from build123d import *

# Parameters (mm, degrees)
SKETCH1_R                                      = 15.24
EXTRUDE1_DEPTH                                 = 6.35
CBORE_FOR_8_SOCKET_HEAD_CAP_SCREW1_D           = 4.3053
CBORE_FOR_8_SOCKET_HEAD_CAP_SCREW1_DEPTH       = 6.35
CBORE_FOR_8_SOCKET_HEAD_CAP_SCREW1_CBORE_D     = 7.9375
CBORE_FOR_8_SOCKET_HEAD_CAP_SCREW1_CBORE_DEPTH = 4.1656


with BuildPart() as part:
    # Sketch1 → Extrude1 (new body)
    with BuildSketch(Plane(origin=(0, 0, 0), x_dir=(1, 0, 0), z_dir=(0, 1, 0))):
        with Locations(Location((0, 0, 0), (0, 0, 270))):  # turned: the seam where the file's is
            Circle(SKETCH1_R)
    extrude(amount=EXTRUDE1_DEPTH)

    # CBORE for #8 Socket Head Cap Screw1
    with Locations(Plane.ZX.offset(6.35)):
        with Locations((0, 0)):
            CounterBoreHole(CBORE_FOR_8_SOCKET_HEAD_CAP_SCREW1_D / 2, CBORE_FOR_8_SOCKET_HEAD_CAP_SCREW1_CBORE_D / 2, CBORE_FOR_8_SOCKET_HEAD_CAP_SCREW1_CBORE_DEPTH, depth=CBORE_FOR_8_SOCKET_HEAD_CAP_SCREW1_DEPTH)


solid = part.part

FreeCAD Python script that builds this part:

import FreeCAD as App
import Part
import Sketcher
Q = App.Units.Quantity

doc = App.newDocument("Part")
body = doc.addObject("PartDesign::Body", "Body")

sketch1 = body.newObject("Sketcher::SketchObject", "Sketch")
sketch1.AttachmentSupport = (doc.getObject("XZ_Plane"), [""])
sketch1.MapMode = "FlatFace"
sketch1.addGeometry(Part.Circle(App.Vector(0, 0, 0), App.Vector(0, 0, 1), 15), False)
sketch1.addConstraint(Sketcher.Constraint("Coincident", 0, 3, -1, 1))
sketch1.addConstraint(Sketcher.Constraint("Diameter", 0, Q("1.2 in")))
pad1 = body.newObject("PartDesign::Pad", "Pad")
pad1.Profile = sketch1
pad1.Length = Q("0.25 in")
pad1.Reversed = True

sketch2 = body.newObject("Sketcher::SketchObject", "Sketch001")
sketch2.AttachmentSupport = (doc.getObject("XZ_Plane"), [""])
sketch2.MapMode = "FlatFace"
sketch2.AttachmentOffset = App.Placement(App.Vector(0, 0, -0.25 * 25.4), App.Rotation())
sketch2.addGeometry(Part.Circle(App.Vector(0, 0, 0), App.Vector(0, 0, 1), 2.2), False)
sketch2.addConstraint(Sketcher.Constraint("Coincident", 0, 3, -1, 1))
sketch2.addConstraint(Sketcher.Constraint("Diameter", 0, Q("0.1695 in")))
doc.recompute()
hole = body.newObject("PartDesign::Hole", "Hole")
hole.Profile = sketch2
hole.ThreadType = "None"
hole.Diameter = Q("0.1695 in")
hole.DepthType = "Dimension"
hole.Depth = Q("0.25 in")
hole.DrillPoint = "Flat"
hole.HoleCutType = "Counterbore"
hole.HoleCutDiameter = Q("0.3125 in")
hole.HoleCutDepth = Q("0.164 in")
hole.Reversed = True

doc.recompute()
